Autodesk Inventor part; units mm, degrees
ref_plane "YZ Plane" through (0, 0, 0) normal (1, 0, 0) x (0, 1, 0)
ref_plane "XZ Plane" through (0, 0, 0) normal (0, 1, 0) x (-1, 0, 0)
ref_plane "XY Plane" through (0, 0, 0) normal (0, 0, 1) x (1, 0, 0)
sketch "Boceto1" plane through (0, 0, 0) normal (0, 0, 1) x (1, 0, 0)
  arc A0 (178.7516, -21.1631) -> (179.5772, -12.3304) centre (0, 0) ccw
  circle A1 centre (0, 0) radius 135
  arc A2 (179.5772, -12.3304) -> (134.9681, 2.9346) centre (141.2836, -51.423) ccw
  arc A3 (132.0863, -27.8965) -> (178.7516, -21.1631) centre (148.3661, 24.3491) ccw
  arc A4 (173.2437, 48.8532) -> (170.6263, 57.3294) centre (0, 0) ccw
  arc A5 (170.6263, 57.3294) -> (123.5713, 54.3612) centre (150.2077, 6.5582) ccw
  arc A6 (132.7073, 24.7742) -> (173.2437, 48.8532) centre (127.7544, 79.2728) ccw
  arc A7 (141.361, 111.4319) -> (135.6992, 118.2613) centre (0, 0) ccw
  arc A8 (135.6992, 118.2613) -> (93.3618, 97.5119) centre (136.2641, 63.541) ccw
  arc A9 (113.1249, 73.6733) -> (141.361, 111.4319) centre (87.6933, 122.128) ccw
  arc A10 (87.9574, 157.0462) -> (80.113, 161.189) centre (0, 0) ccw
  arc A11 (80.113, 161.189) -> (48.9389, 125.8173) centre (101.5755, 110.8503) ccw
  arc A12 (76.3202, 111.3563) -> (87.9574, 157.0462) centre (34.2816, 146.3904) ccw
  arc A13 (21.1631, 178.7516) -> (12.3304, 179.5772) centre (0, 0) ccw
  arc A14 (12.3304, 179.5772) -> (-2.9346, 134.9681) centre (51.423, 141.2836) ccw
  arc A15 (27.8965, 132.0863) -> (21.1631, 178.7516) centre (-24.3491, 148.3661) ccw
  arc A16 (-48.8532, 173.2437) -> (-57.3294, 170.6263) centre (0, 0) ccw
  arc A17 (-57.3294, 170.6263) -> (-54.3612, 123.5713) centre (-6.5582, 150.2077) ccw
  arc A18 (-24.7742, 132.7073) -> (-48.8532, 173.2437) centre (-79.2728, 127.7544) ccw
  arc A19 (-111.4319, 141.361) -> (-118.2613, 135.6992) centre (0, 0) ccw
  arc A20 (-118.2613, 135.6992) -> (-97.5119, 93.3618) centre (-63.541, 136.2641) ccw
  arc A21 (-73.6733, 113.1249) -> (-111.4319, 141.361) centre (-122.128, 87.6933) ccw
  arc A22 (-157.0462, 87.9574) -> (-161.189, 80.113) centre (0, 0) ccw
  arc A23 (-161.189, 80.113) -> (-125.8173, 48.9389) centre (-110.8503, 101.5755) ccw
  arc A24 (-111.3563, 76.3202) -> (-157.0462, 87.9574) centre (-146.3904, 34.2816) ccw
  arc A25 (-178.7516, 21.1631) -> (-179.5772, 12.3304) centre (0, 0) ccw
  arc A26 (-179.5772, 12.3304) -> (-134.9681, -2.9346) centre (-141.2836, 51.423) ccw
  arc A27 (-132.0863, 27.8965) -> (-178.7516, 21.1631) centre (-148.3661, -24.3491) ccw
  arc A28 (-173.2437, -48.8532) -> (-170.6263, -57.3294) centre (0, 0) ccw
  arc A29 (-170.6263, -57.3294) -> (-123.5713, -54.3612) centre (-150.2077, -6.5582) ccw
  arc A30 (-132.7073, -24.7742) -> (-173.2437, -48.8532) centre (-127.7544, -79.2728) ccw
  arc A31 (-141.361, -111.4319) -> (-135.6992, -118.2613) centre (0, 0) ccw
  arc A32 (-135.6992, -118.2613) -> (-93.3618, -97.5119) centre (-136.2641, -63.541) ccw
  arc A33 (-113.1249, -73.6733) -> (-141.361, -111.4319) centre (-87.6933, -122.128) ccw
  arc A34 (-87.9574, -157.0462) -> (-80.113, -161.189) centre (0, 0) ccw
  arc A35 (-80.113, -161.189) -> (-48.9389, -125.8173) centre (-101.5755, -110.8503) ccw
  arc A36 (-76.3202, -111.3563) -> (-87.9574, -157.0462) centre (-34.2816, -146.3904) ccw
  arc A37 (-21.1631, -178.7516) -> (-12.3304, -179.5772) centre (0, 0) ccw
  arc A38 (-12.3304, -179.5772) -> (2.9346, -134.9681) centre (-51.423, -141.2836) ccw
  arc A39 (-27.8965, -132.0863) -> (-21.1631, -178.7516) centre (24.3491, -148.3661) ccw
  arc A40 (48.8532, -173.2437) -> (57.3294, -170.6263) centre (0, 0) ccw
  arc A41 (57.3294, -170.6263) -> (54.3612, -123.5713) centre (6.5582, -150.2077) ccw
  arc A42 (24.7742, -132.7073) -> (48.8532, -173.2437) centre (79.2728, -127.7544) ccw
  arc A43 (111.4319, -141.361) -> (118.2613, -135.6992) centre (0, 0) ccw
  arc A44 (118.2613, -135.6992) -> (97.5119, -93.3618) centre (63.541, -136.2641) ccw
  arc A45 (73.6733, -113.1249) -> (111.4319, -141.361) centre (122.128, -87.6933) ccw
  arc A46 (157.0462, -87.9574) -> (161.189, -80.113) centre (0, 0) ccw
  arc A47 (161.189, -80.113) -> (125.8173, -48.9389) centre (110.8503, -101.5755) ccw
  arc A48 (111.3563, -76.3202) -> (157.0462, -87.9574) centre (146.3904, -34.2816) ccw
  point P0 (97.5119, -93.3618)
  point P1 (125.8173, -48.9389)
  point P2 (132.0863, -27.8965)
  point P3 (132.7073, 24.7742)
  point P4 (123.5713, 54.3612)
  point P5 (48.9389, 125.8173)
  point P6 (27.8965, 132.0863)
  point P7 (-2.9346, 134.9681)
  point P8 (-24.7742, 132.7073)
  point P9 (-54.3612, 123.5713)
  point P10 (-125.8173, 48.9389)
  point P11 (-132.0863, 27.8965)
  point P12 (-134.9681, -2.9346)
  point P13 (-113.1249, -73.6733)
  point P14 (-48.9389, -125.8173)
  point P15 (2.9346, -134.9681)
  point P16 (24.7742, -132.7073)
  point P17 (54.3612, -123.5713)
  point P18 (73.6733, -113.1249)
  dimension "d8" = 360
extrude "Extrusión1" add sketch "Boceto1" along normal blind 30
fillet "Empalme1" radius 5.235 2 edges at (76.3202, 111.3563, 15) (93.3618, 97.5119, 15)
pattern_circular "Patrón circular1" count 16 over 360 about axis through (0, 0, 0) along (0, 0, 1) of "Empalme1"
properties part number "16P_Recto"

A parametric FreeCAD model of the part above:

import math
import FreeCAD as App
import Part
import Sketcher

V = App.Vector


def edges_at(feature, points):
    """Names of the edges that pass closest to the given points."""
    edges = feature.Shape.Edges
    near = lambda p: min(range(len(edges)), key=lambda i: edges[i].distToShape(Part.Vertex(*p))[0])
    return sorted({f"Edge{near(p) + 1}" for p in points})

doc = App.newDocument("Part")
body = doc.addObject("PartDesign::Body", "Body")

# Sketch on XY plane
sketch1 = doc.addObject("Sketcher::SketchObject", "Sketch")
body.addObject(sketch1)
sketch1.AttachmentSupport = (doc.XY_Plane, [""])
sketch1.MapMode = "FlatFace"
sketch1.addGeometry([
    Part.ArcOfCircle(Part.Circle(V(148.3661, 24.3491, 0), V(0, 0, 1), 54.723255), math.radians(-107.307105), math.radians(-56.271572)),  # 0
    Part.ArcOfCircle(Part.Circle(V(0.008097, -0.000858, 0), V(0, 0, 1), 179.99189), math.radians(-6.752072), math.radians(-3.927868)),  # 1
    Part.ArcOfCircle(Part.Circle(V(141.2836, -51.423, 0), V(0, 0, 1), 54.723223), math.radians(45.591549), math.radians(96.627157)),  # 2
    Part.ArcOfCircle(Part.Circle(V(0, 0, 0), V(0, 0, 1), 135), math.radians(1.245581), math.radians(10.574429)),  # 3
    Part.ArcOfCircle(Part.Circle(V(127.7544, 79.2728, 0), V(0, 0, 1), 54.7232), math.radians(-84.807154), math.radians(-33.771434)),  # 4
    Part.ArcOfCircle(Part.Circle(V(0.089375, 0.026396, 0), V(0, 0, 1), 179.906857), math.radians(15.747619), math.radians(18.573133)),  # 5
    Part.ArcOfCircle(Part.Circle(V(150.2077, 6.5582, 0), V(0, 0, 1), 54.723249), math.radians(68.09154), math.radians(119.127072)),  # 6
    Part.ArcOfCircle(Part.Circle(V(0, 0, 0), V(0, 0, 1), 135), math.radians(23.745543), math.radians(33.074439)),  # 7
    Part.ArcOfCircle(Part.Circle(V(87.6933, 122.128, 0), V(0, 0, 1), 54.72316), math.radians(-62.307125), math.radians(-11.271494)),  # 8
    Part.ArcOfCircle(Part.Circle(V(-0.025971, -0.020996, 0), V(0, 0, 1), 180.033396), math.radians(38.248099), math.radians(41.071625)),  # 9
    Part.ArcOfCircle(Part.Circle(V(136.2641, 63.541, 0), V(0, 0, 1), 54.723216), math.radians(90.591467), math.radians(141.627114)),  # 10
    Part.ArcOfCircle(Part.Circle(V(0, 0, 0), V(0, 0, 1), 135), math.radians(46.245566), math.radians(55.574454)),  # 11
    Part.ArcOfCircle(Part.Circle(V(34.2816, 146.3904, 0), V(0, 0, 1), 54.723231), math.radians(-39.807126), math.radians(11.228455)),  # 12
    Part.ArcOfCircle(Part.Circle(V(0.058233, 0.107046, 0), V(0, 0, 1), 179.878185), math.radians(60.747494), math.radians(63.573469)),  # 13
    Part.ArcOfCircle(Part.Circle(V(101.5755, 110.8503, 0), V(0, 0, 1), 54.723154), math.radians(113.091549), math.radians(164.127117)),  # 14
    Part.ArcOfCircle(Part.Circle(V(0, 0, 0), V(0, 0, 1), 135), math.radians(68.745559), math.radians(78.074438)),  # 15
    Part.ArcOfCircle(Part.Circle(V(-24.3491, 148.3661, 0), V(0, 0, 1), 54.723255), math.radians(-17.307105), math.radians(33.728428)),  # 16
    Part.ArcOfCircle(Part.Circle(V(0.000858, 0.008097, 0), V(0, 0, 1), 179.99189), math.radians(83.247928), math.radians(86.072132)),  # 17
    Part.ArcOfCircle(Part.Circle(V(51.423, 141.2836, 0), V(0, 0, 1), 54.723223), math.radians(135.591549), math.radians(186.627157)),  # 18
    Part.ArcOfCircle(Part.Circle(V(0, 0, 0), V(0, 0, 1), 135), math.radians(91.245581), math.radians(100.574429)),  # 19
    Part.ArcOfCircle(Part.Circle(V(-79.2728, 127.7544, 0), V(0, 0, 1), 54.7232), math.radians(5.192846), math.radians(56.228566)),  # 20
    Part.ArcOfCircle(Part.Circle(V(-0.026396, 0.089375, 0), V(0, 0, 1), 179.906857), math.radians(105.747619), math.radians(108.573133)),  # 21
    Part.ArcOfCircle(Part.Circle(V(-6.5582, 150.2077, 0), V(0, 0, 1), 54.723249), math.radians(158.09154), math.radians(209.127072)),  # 22
    Part.ArcOfCircle(Part.Circle(V(0, 0, 0), V(0, 0, 1), 135), math.radians(113.745543), math.radians(123.074439)),  # 23
    Part.ArcOfCircle(Part.Circle(V(-122.128, 87.6933, 0), V(0, 0, 1), 54.72316), math.radians(27.692875), math.radians(78.728506)),  # 24
    Part.ArcOfCircle(Part.Circle(V(0.020996, -0.025971, 0), V(0, 0, 1), 180.033396), math.radians(128.248099), math.radians(131.071625)),  # 25
    Part.ArcOfCircle(Part.Circle(V(-63.541, 136.2641, 0), V(0, 0, 1), 54.723216), math.radians(-179.408533), math.radians(-128.372886)),  # 26
    Part.ArcOfCircle(Part.Circle(V(0, 0, 0), V(0, 0, 1), 135), math.radians(136.245566), math.radians(145.574454)),  # 27
    Part.ArcOfCircle(Part.Circle(V(-146.3904, 34.2816, 0), V(0, 0, 1), 54.723231), math.radians(50.192874), math.radians(101.228455)),  # 28
    Part.ArcOfCircle(Part.Circle(V(-0.107046, 0.058233, 0), V(0, 0, 1), 179.878185), math.radians(150.747494), math.radians(153.573469)),  # 29
    Part.ArcOfCircle(Part.Circle(V(-110.8503, 101.5755, 0), V(0, 0, 1), 54.723154), math.radians(-156.908451), math.radians(-105.872883)),  # 30
    Part.ArcOfCircle(Part.Circle(V(0, 0, 0), V(0, 0, 1), 135), math.radians(158.745559), math.radians(168.074438)),  # 31
    Part.ArcOfCircle(Part.Circle(V(-148.3661, -24.3491, 0), V(0, 0, 1), 54.723255), math.radians(72.692895), math.radians(123.728428)),  # 32
    Part.ArcOfCircle(Part.Circle(V(-0.008097, 0.000858, 0), V(0, 0, 1), 179.99189), math.radians(173.247928), math.radians(176.072132)),  # 33
    Part.ArcOfCircle(Part.Circle(V(-141.2836, 51.423, 0), V(0, 0, 1), 54.723223), math.radians(-134.408451), math.radians(-83.372843)),  # 34
    Part.ArcOfCircle(Part.Circle(V(0, 0, 0), V(0, 0, 1), 135), math.radians(-178.754419), math.radians(-169.425571)),  # 35
    Part.ArcOfCircle(Part.Circle(V(-127.7544, -79.2728, 0), V(0, 0, 1), 54.7232), math.radians(95.192846), math.radians(146.228566)),  # 36
    Part.ArcOfCircle(Part.Circle(V(-0.089375, -0.026396, 0), V(0, 0, 1), 179.906857), math.radians(-164.252381), math.radians(-161.426867)),  # 37
    Part.ArcOfCircle(Part.Circle(V(-150.2077, -6.5582, 0), V(0, 0, 1), 54.723249), math.radians(-111.90846), math.radians(-60.872928)),  # 38
    Part.ArcOfCircle(Part.Circle(V(0, 0, 0), V(0, 0, 1), 135), math.radians(-156.254457), math.radians(-146.925561)),  # 39
    Part.ArcOfCircle(Part.Circle(V(-87.6933, -122.128, 0), V(0, 0, 1), 54.72316), math.radians(117.692875), math.radians(168.728506)),  # 40
    Part.ArcOfCircle(Part.Circle(V(0.025971, 0.020996, 0), V(0, 0, 1), 180.033396), math.radians(-141.751901), math.radians(-138.928375)),  # 41
    Part.ArcOfCircle(Part.Circle(V(-136.2641, -63.541, 0), V(0, 0, 1), 54.723216), math.radians(-89.408533), math.radians(-38.372886)),  # 42
    Part.ArcOfCircle(Part.Circle(V(0, 0, 0), V(0, 0, 1), 135), math.radians(-133.754434), math.radians(-124.425546)),  # 43
    Part.ArcOfCircle(Part.Circle(V(-34.2816, -146.3904, 0), V(0, 0, 1), 54.723231), math.radians(140.192874), math.radians(191.228455)),  # 44
    Part.ArcOfCircle(Part.Circle(V(-0.058233, -0.107046, 0), V(0, 0, 1), 179.878185), math.radians(-119.252506), math.radians(-116.426531)),  # 45
    Part.ArcOfCircle(Part.Circle(V(-101.5755, -110.8503, 0), V(0, 0, 1), 54.723154), math.radians(-66.908451), math.radians(-15.872883)),  # 46
    Part.ArcOfCircle(Part.Circle(V(0, 0, 0), V(0, 0, 1), 135), math.radians(-111.254441), math.radians(-101.925562)),  # 47
    Part.ArcOfCircle(Part.Circle(V(24.3491, -148.3661, 0), V(0, 0, 1), 54.723255), math.radians(162.692895), math.radians(213.728428)),  # 48
    Part.ArcOfCircle(Part.Circle(V(-0.000858, -0.008097, 0), V(0, 0, 1), 179.99189), math.radians(-96.752072), math.radians(-93.927868)),  # 49
    Part.ArcOfCircle(Part.Circle(V(-51.423, -141.2836, 0), V(0, 0, 1), 54.723223), math.radians(-44.408451), math.radians(6.627157)),  # 50
    Part.ArcOfCircle(Part.Circle(V(0, 0, 0), V(0, 0, 1), 135), math.radians(-88.754419), math.radians(-79.425571)),  # 51
    Part.ArcOfCircle(Part.Circle(V(79.2728, -127.7544, 0), V(0, 0, 1), 54.7232), math.radians(-174.807154), math.radians(-123.771434)),  # 52
    Part.ArcOfCircle(Part.Circle(V(0.026396, -0.089375, 0), V(0, 0, 1), 179.906857), math.radians(-74.252381), math.radians(-71.426867)),  # 53
    Part.ArcOfCircle(Part.Circle(V(6.5582, -150.2077, 0), V(0, 0, 1), 54.723249), math.radians(-21.90846), math.radians(29.127072)),  # 54
    Part.ArcOfCircle(Part.Circle(V(0, 0, 0), V(0, 0, 1), 135), math.radians(-66.254457), math.radians(-56.925561)),  # 55
    Part.ArcOfCircle(Part.Circle(V(122.128, -87.6933, 0), V(0, 0, 1), 54.72316), math.radians(-152.307125), math.radians(-101.271494)),  # 56
    Part.ArcOfCircle(Part.Circle(V(-0.020996, 0.025971, 0), V(0, 0, 1), 180.033396), math.radians(-51.751901), math.radians(-48.928375)),  # 57
    Part.ArcOfCircle(Part.Circle(V(63.541, -136.2641, 0), V(0, 0, 1), 54.723216), math.radians(0.591467), math.radians(51.627114)),  # 58
    Part.ArcOfCircle(Part.Circle(V(0, 0, 0), V(0, 0, 1), 135), math.radians(-43.754434), math.radians(-34.425546)),  # 59
    Part.ArcOfCircle(Part.Circle(V(146.3904, -34.2816, 0), V(0, 0, 1), 54.723231), math.radians(-129.807126), math.radians(-78.771545)),  # 60
    Part.ArcOfCircle(Part.Circle(V(0.107046, -0.058233, 0), V(0, 0, 1), 179.878185), math.radians(-29.252506), math.radians(-26.426531)),  # 61
    Part.ArcOfCircle(Part.Circle(V(110.8503, -101.5755, 0), V(0, 0, 1), 54.723154), math.radians(23.091549), math.radians(74.127117)),  # 62
    Part.ArcOfCircle(Part.Circle(V(0, 0, 0), V(0, 0, 1), 135), math.radians(-21.254441), math.radians(-11.925562)),  # 63
], False)
sketch1.addConstraint([
    Sketcher.Constraint("Coincident", 0, 2, 1, 1),
    Sketcher.Constraint("Coincident", 1, 2, 2, 1),
    Sketcher.Constraint("Coincident", 2, 2, 3, 1),
    Sketcher.Constraint("Coincident", 3, 2, 4, 1),
    Sketcher.Constraint("Coincident", 4, 2, 5, 1),
    Sketcher.Constraint("Coincident", 5, 2, 6, 1),
    Sketcher.Constraint("Coincident", 6, 2, 7, 1),
    Sketcher.Constraint("Coincident", 7, 2, 8, 1),
    Sketcher.Constraint("Coincident", 8, 2, 9, 1),
    Sketcher.Constraint("Coincident", 9, 2, 10, 1),
    Sketcher.Constraint("Coincident", 10, 2, 11, 1),
    Sketcher.Constraint("Coincident", 11, 2, 12, 1),
    Sketcher.Constraint("Coincident", 12, 2, 13, 1),
    Sketcher.Constraint("Coincident", 13, 2, 14, 1),
    Sketcher.Constraint("Coincident", 14, 2, 15, 1),
    Sketcher.Constraint("Coincident", 15, 2, 16, 1),
    Sketcher.Constraint("Coincident", 16, 2, 17, 1),
    Sketcher.Constraint("Coincident", 17, 2, 18, 1),
    Sketcher.Constraint("Coincident", 18, 2, 19, 1),
    Sketcher.Constraint("Coincident", 19, 2, 20, 1),
    Sketcher.Constraint("Coincident", 20, 2, 21, 1),
    Sketcher.Constraint("Coincident", 21, 2, 22, 1),
    Sketcher.Constraint("Coincident", 22, 2, 23, 1),
    Sketcher.Constraint("Coincident", 23, 2, 24, 1),
    Sketcher.Constraint("Coincident", 24, 2, 25, 1),
    Sketcher.Constraint("Coincident", 25, 2, 26, 1),
    Sketcher.Constraint("Coincident", 26, 2, 27, 1),
    Sketcher.Constraint("Coincident", 27, 2, 28, 1),
    Sketcher.Constraint("Coincident", 28, 2, 29, 1),
    Sketcher.Constraint("Coincident", 29, 2, 30, 1),
    Sketcher.Constraint("Coincident", 30, 2, 31, 1),
    Sketcher.Constraint("Coincident", 31, 2, 32, 1),
    Sketcher.Constraint("Coincident", 32, 2, 33, 1),
    Sketcher.Constraint("Coincident", 33, 2, 34, 1),
    Sketcher.Constraint("Coincident", 34, 2, 35, 1),
    Sketcher.Constraint("Coincident", 35, 2, 36, 1),
    Sketcher.Constraint("Coincident", 36, 2, 37, 1),
    Sketcher.Constraint("Coincident", 37, 2, 38, 1),
    Sketcher.Constraint("Coincident", 38, 2, 39, 1),
    Sketcher.Constraint("Coincident", 39, 2, 40, 1),
    Sketcher.Constraint("Coincident", 40, 2, 41, 1),
    Sketcher.Constraint("Coincident", 41, 2, 42, 1),
    Sketcher.Constraint("Coincident", 42, 2, 43, 1),
    Sketcher.Constraint("Coincident", 43, 2, 44, 1),
    Sketcher.Constraint("Coincident", 44, 2, 45, 1),
    Sketcher.Constraint("Coincident", 45, 2, 46, 1),
    Sketcher.Constraint("Coincident", 46, 2, 47, 1),
    Sketcher.Constraint("Coincident", 47, 2, 48, 1),
    Sketcher.Constraint("Coincident", 48, 2, 49, 1),
    Sketcher.Constraint("Coincident", 49, 2, 50, 1),
    Sketcher.Constraint("Coincident", 50, 2, 51, 1),
    Sketcher.Constraint("Coincident", 51, 2, 52, 1),
    Sketcher.Constraint("Coincident", 52, 2, 53, 1),
    Sketcher.Constraint("Coincident", 53, 2, 54, 1),
    Sketcher.Constraint("Coincident", 54, 2, 55, 1),
    Sketcher.Constraint("Coincident", 55, 2, 56, 1),
    Sketcher.Constraint("Coincident", 56, 2, 57, 1),
    Sketcher.Constraint("Coincident", 57, 2, 58, 1),
    Sketcher.Constraint("Coincident", 58, 2, 59, 1),
    Sketcher.Constraint("Coincident", 59, 2, 60, 1),
    Sketcher.Constraint("Coincident", 60, 2, 61, 1),
    Sketcher.Constraint("Coincident", 61, 2, 62, 1),
    Sketcher.Constraint("Coincident", 62, 2, 63, 1),
    Sketcher.Constraint("Coincident", 63, 2, 0, 1),
    Sketcher.Constraint("Coincident", 3, 3, -1, 1),
    Sketcher.Constraint("Coincident", 7, 3, -1, 1),
    Sketcher.Constraint("Coincident", 11, 3, -1, 1),
    Sketcher.Constraint("Coincident", 15, 3, -1, 1),
    Sketcher.Constraint("Coincident", 19, 3, -1, 1),
    Sketcher.Constraint("Coincident", 23, 3, -1, 1),
    Sketcher.Constraint("Coincident", 27, 3, -1, 1),
    Sketcher.Constraint("Coincident", 31, 3, -1, 1),
    Sketcher.Constraint("Coincident", 35, 3, -1, 1),
    Sketcher.Constraint("Coincident", 39, 3, -1, 1),
    Sketcher.Constraint("Coincident", 43, 3, -1, 1),
    Sketcher.Constraint("Coincident", 47, 3, -1, 1),
    Sketcher.Constraint("Coincident", 51, 3, -1, 1),
    Sketcher.Constraint("Coincident", 55, 3, -1, 1),
    Sketcher.Constraint("Coincident", 59, 3, -1, 1),
    Sketcher.Constraint("Coincident", 63, 3, -1, 1),
    Sketcher.Constraint("Equal", 0, 2),
    Sketcher.Constraint("Equal", 2, 4),
    Sketcher.Constraint("Equal", 4, 6),
    Sketcher.Constraint("Equal", 3, 7),
    Sketcher.Constraint("Equal", 6, 8),
    Sketcher.Constraint("Equal", 8, 10),
    Sketcher.Constraint("Equal", 7, 11),
    Sketcher.Constraint("Equal", 10, 12),
    Sketcher.Constraint("Equal", 12, 14),
    Sketcher.Constraint("Equal", 11, 15),
    Sketcher.Constraint("Equal", 14, 16),
    Sketcher.Constraint("Equal", 1, 17),
    Sketcher.Constraint("Equal", 16, 18),
    Sketcher.Constraint("Equal", 15, 19),
    Sketcher.Constraint("Equal", 18, 20),
    Sketcher.Constraint("Equal", 5, 21),
    Sketcher.Constraint("Equal", 20, 22),
    Sketcher.Constraint("Equal", 19, 23),
    Sketcher.Constraint("Equal", 22, 24),
    Sketcher.Constraint("Equal", 9, 25),
    Sketcher.Constraint("Equal", 24, 26),
    Sketcher.Constraint("Equal", 23, 27),
    Sketcher.Constraint("Equal", 26, 28),
    Sketcher.Constraint("Equal", 13, 29),
    Sketcher.Constraint("Equal", 28, 30),
    Sketcher.Constraint("Equal", 27, 31),
    Sketcher.Constraint("Equal", 30, 32),
    Sketcher.Constraint("Equal", 17, 33),
    Sketcher.Constraint("Equal", 32, 34),
    Sketcher.Constraint("Equal", 31, 35),
    Sketcher.Constraint("Equal", 34, 36),
    Sketcher.Constraint("Equal", 21, 37),
    Sketcher.Constraint("Equal", 36, 38),
    Sketcher.Constraint("Equal", 35, 39),
    Sketcher.Constraint("Equal", 38, 40),
    Sketcher.Constraint("Equal", 25, 41),
    Sketcher.Constraint("Equal", 40, 42),
    Sketcher.Constraint("Equal", 39, 43),
    Sketcher.Constraint("Equal", 42, 44),
    Sketcher.Constraint("Equal", 29, 45),
    Sketcher.Constraint("Equal", 44, 46),
    Sketcher.Constraint("Equal", 43, 47),
    Sketcher.Constraint("Equal", 46, 48),
    Sketcher.Constraint("Equal", 33, 49),
    Sketcher.Constraint("Equal", 48, 50),
    Sketcher.Constraint("Equal", 47, 51),
    Sketcher.Constraint("Equal", 50, 52),
    Sketcher.Constraint("Equal", 37, 53),
    Sketcher.Constraint("Equal", 52, 54),
    Sketcher.Constraint("Equal", 51, 55),
    Sketcher.Constraint("Equal", 54, 56),
    Sketcher.Constraint("Equal", 41, 57),
    Sketcher.Constraint("Equal", 56, 58),
    Sketcher.Constraint("Equal", 55, 59),
    Sketcher.Constraint("Equal", 58, 60),
    Sketcher.Constraint("Equal", 45, 61),
    Sketcher.Constraint("Equal", 60, 62),
    Sketcher.Constraint("Equal", 59, 63),
    Sketcher.Constraint("Symmetric", 0, 3, 32, 3, -1, 1),
    Sketcher.Constraint("Symmetric", 1, 3, 33, 3, -1, 1),
    Sketcher.Constraint("Symmetric", 2, 3, 34, 3, -1, 1),
    Sketcher.Constraint("Symmetric", 4, 3, 36, 3, -1, 1),
    Sketcher.Constraint("Symmetric", 5, 3, 37, 3, -1, 1),
    Sketcher.Constraint("Symmetric", 6, 3, 38, 3, -1, 1),
    Sketcher.Constraint("Symmetric", 8, 3, 40, 3, -1, 1),
    Sketcher.Constraint("Symmetric", 9, 3, 41, 3, -1, 1),
    Sketcher.Constraint("Symmetric", 10, 3, 42, 3, -1, 1),
    Sketcher.Constraint("Symmetric", 12, 3, 44, 3, -1, 1),
    Sketcher.Constraint("Symmetric", 13, 3, 45, 3, -1, 1),
    Sketcher.Constraint("Symmetric", 14, 3, 46, 3, -1, 1),
    Sketcher.Constraint("Symmetric", 16, 3, 48, 3, -1, 1),
    Sketcher.Constraint("Symmetric", 17, 3, 49, 3, -1, 1),
    Sketcher.Constraint("Symmetric", 18, 3, 50, 3, -1, 1),
    Sketcher.Constraint("Symmetric", 20, 3, 52, 3, -1, 1),
    Sketcher.Constraint("Symmetric", 21, 3, 53, 3, -1, 1),
    Sketcher.Constraint("Symmetric", 22, 3, 54, 3, -1, 1),
    Sketcher.Constraint("Symmetric", 24, 3, 56, 3, -1, 1),
    Sketcher.Constraint("Symmetric", 25, 3, 57, 3, -1, 1),
    Sketcher.Constraint("Symmetric", 26, 3, 58, 3, -1, 1),
    Sketcher.Constraint("Symmetric", 28, 3, 60, 3, -1, 1),
    Sketcher.Constraint("Symmetric", 29, 3, 61, 3, -1, 1),
    Sketcher.Constraint("Symmetric", 30, 3, 62, 3, -1, 1),
    Sketcher.Constraint("Radius", 3, 135.0),
    Sketcher.Constraint("Radius", 1, 179.992),
    Sketcher.Constraint("Radius", 0, 54.7233),
    Sketcher.Constraint("Radius", 5, 179.9069),
    Sketcher.Constraint("Radius", 9, 180.0334),
    Sketcher.Constraint("Radius", 13, 179.8782),
    Sketcher.Constraint("DistanceX", -1, 1, 0, 3, 148.366),
    Sketcher.Constraint("DistanceY", -1, 1, 0, 3, 24.349),
    Sketcher.Constraint("DistanceX", -1, 1, 1, 3, 0.008),
    Sketcher.Constraint("DistanceY", 2, 3, -1, 1, 51.423),
    Sketcher.Constraint("DistanceY", -1, 1, 8, 3, 122.128),
    Sketcher.Constraint("DistanceX", 9, 3, -1, 1, 0.026),
    Sketcher.Constraint("DistanceY", 9, 3, -1, 1, 0.021),
    Sketcher.Constraint("DistanceX", -1, 1, 10, 3, 136.264),
    Sketcher.Constraint("DistanceY", -1, 1, 10, 3, 63.541),
    Sketcher.Constraint("DistanceY", -1, 1, 13, 3, 0.107),
    Sketcher.Constraint("DistanceX", 16, 3, -1, 1, 24.349),
    Sketcher.Constraint("DistanceY", -1, 1, 16, 3, 148.366),
    Sketcher.Constraint("DistanceY", -1, 1, 17, 3, 0.008),
    Sketcher.Constraint("DistanceX", -1, 1, 18, 3, 51.423),
    Sketcher.Constraint("DistanceX", 24, 3, -1, 1, 122.128),
    Sketcher.Constraint("DistanceX", -1, 1, 25, 3, 0.021),
    Sketcher.Constraint("DistanceY", 25, 3, -1, 1, 0.026),
    Sketcher.Constraint("DistanceX", 26, 3, -1, 1, 63.541),
    Sketcher.Constraint("DistanceY", -1, 1, 26, 3, 136.264),
    Sketcher.Constraint("DistanceX", 29, 3, -1, 1, 0.107),
    Sketcher.Constraint("DistanceX", -1, 1, 7, 2, 113.125),
    Sketcher.Constraint("DistanceX", -1, 1, 13, 2, 80.113),
    Sketcher.Constraint("DistanceY", -1, 1, 13, 2, 161.189),
    Sketcher.Constraint("DistanceX", -1, 1, 14, 2, 48.939),
    Sketcher.Constraint("DistanceY", -1, 1, 23, 2, 113.125),
    Sketcher.Constraint("DistanceX", 29, 2, -1, 1, 161.189),
    Sketcher.Constraint("DistanceY", -1, 1, 29, 2, 80.113),
    Sketcher.Constraint("DistanceY", -1, 1, 30, 2, 48.939),
    Sketcher.Constraint("DistanceY", 1, 3, -1, 1, 0.0009),
    Sketcher.Constraint("DistanceX", -1, 1, 2, 3, 141.2836),
    Sketcher.Constraint("DistanceX", -1, 1, 4, 3, 127.7544),
    Sketcher.Constraint("DistanceY", -1, 1, 4, 3, 79.2728),
    Sketcher.Constraint("DistanceX", -1, 1, 5, 3, 0.0894),
    Sketcher.Constraint("DistanceY", -1, 1, 5, 3, 0.0264),
    Sketcher.Constraint("DistanceX", -1, 1, 6, 3, 150.2077),
    Sketcher.Constraint("DistanceY", -1, 1, 6, 3, 6.5582),
    Sketcher.Constraint("DistanceX", -1, 1, 12, 3, 34.2816),
    Sketcher.Constraint("DistanceY", -1, 1, 12, 3, 146.3904),
    Sketcher.Constraint("DistanceX", -1, 1, 17, 3, 0.0009),
    Sketcher.Constraint("DistanceY", -1, 1, 18, 3, 141.2836),
    Sketcher.Constraint("DistanceX", 20, 3, -1, 1, 79.2728),
    Sketcher.Constraint("DistanceY", -1, 1, 20, 3, 127.7544),
    Sketcher.Constraint("DistanceX", 21, 3, -1, 1, 0.0264),
    Sketcher.Constraint("DistanceY", -1, 1, 21, 3, 0.0894),
    Sketcher.Constraint("DistanceX", 22, 3, -1, 1, 6.5582),
    Sketcher.Constraint("DistanceY", -1, 1, 22, 3, 150.2077),
    Sketcher.Constraint("DistanceX", 28, 3, -1, 1, 146.3904),
    Sketcher.Constraint("DistanceY", -1, 1, 28, 3, 34.2816),
])
pad1 = doc.addObject("PartDesign::Pad", "Pad")
body.addObject(pad1)
pad1.Profile = sketch1
pad1.Length = 30
doc.recompute()

fillet = doc.addObject("PartDesign::Fillet", "Fillet")
body.addObject(fillet)
fillet.Base = (pad1, edges_at(pad1, [(76.32, 111.356, 15), (93.362, 97.512, 15)]))
fillet.Radius = 5.235
doc.recompute()

polarpattern = doc.addObject("PartDesign::PolarPattern", "PolarPattern")
body.addObject(polarpattern)
polarpattern.Originals = [fillet]
polarpattern.Axis = (doc.Z_Axis, [""])
polarpattern.Angle = 360
polarpattern.Occurrences = 16
body.Tip = polarpattern

doc.recompute()
